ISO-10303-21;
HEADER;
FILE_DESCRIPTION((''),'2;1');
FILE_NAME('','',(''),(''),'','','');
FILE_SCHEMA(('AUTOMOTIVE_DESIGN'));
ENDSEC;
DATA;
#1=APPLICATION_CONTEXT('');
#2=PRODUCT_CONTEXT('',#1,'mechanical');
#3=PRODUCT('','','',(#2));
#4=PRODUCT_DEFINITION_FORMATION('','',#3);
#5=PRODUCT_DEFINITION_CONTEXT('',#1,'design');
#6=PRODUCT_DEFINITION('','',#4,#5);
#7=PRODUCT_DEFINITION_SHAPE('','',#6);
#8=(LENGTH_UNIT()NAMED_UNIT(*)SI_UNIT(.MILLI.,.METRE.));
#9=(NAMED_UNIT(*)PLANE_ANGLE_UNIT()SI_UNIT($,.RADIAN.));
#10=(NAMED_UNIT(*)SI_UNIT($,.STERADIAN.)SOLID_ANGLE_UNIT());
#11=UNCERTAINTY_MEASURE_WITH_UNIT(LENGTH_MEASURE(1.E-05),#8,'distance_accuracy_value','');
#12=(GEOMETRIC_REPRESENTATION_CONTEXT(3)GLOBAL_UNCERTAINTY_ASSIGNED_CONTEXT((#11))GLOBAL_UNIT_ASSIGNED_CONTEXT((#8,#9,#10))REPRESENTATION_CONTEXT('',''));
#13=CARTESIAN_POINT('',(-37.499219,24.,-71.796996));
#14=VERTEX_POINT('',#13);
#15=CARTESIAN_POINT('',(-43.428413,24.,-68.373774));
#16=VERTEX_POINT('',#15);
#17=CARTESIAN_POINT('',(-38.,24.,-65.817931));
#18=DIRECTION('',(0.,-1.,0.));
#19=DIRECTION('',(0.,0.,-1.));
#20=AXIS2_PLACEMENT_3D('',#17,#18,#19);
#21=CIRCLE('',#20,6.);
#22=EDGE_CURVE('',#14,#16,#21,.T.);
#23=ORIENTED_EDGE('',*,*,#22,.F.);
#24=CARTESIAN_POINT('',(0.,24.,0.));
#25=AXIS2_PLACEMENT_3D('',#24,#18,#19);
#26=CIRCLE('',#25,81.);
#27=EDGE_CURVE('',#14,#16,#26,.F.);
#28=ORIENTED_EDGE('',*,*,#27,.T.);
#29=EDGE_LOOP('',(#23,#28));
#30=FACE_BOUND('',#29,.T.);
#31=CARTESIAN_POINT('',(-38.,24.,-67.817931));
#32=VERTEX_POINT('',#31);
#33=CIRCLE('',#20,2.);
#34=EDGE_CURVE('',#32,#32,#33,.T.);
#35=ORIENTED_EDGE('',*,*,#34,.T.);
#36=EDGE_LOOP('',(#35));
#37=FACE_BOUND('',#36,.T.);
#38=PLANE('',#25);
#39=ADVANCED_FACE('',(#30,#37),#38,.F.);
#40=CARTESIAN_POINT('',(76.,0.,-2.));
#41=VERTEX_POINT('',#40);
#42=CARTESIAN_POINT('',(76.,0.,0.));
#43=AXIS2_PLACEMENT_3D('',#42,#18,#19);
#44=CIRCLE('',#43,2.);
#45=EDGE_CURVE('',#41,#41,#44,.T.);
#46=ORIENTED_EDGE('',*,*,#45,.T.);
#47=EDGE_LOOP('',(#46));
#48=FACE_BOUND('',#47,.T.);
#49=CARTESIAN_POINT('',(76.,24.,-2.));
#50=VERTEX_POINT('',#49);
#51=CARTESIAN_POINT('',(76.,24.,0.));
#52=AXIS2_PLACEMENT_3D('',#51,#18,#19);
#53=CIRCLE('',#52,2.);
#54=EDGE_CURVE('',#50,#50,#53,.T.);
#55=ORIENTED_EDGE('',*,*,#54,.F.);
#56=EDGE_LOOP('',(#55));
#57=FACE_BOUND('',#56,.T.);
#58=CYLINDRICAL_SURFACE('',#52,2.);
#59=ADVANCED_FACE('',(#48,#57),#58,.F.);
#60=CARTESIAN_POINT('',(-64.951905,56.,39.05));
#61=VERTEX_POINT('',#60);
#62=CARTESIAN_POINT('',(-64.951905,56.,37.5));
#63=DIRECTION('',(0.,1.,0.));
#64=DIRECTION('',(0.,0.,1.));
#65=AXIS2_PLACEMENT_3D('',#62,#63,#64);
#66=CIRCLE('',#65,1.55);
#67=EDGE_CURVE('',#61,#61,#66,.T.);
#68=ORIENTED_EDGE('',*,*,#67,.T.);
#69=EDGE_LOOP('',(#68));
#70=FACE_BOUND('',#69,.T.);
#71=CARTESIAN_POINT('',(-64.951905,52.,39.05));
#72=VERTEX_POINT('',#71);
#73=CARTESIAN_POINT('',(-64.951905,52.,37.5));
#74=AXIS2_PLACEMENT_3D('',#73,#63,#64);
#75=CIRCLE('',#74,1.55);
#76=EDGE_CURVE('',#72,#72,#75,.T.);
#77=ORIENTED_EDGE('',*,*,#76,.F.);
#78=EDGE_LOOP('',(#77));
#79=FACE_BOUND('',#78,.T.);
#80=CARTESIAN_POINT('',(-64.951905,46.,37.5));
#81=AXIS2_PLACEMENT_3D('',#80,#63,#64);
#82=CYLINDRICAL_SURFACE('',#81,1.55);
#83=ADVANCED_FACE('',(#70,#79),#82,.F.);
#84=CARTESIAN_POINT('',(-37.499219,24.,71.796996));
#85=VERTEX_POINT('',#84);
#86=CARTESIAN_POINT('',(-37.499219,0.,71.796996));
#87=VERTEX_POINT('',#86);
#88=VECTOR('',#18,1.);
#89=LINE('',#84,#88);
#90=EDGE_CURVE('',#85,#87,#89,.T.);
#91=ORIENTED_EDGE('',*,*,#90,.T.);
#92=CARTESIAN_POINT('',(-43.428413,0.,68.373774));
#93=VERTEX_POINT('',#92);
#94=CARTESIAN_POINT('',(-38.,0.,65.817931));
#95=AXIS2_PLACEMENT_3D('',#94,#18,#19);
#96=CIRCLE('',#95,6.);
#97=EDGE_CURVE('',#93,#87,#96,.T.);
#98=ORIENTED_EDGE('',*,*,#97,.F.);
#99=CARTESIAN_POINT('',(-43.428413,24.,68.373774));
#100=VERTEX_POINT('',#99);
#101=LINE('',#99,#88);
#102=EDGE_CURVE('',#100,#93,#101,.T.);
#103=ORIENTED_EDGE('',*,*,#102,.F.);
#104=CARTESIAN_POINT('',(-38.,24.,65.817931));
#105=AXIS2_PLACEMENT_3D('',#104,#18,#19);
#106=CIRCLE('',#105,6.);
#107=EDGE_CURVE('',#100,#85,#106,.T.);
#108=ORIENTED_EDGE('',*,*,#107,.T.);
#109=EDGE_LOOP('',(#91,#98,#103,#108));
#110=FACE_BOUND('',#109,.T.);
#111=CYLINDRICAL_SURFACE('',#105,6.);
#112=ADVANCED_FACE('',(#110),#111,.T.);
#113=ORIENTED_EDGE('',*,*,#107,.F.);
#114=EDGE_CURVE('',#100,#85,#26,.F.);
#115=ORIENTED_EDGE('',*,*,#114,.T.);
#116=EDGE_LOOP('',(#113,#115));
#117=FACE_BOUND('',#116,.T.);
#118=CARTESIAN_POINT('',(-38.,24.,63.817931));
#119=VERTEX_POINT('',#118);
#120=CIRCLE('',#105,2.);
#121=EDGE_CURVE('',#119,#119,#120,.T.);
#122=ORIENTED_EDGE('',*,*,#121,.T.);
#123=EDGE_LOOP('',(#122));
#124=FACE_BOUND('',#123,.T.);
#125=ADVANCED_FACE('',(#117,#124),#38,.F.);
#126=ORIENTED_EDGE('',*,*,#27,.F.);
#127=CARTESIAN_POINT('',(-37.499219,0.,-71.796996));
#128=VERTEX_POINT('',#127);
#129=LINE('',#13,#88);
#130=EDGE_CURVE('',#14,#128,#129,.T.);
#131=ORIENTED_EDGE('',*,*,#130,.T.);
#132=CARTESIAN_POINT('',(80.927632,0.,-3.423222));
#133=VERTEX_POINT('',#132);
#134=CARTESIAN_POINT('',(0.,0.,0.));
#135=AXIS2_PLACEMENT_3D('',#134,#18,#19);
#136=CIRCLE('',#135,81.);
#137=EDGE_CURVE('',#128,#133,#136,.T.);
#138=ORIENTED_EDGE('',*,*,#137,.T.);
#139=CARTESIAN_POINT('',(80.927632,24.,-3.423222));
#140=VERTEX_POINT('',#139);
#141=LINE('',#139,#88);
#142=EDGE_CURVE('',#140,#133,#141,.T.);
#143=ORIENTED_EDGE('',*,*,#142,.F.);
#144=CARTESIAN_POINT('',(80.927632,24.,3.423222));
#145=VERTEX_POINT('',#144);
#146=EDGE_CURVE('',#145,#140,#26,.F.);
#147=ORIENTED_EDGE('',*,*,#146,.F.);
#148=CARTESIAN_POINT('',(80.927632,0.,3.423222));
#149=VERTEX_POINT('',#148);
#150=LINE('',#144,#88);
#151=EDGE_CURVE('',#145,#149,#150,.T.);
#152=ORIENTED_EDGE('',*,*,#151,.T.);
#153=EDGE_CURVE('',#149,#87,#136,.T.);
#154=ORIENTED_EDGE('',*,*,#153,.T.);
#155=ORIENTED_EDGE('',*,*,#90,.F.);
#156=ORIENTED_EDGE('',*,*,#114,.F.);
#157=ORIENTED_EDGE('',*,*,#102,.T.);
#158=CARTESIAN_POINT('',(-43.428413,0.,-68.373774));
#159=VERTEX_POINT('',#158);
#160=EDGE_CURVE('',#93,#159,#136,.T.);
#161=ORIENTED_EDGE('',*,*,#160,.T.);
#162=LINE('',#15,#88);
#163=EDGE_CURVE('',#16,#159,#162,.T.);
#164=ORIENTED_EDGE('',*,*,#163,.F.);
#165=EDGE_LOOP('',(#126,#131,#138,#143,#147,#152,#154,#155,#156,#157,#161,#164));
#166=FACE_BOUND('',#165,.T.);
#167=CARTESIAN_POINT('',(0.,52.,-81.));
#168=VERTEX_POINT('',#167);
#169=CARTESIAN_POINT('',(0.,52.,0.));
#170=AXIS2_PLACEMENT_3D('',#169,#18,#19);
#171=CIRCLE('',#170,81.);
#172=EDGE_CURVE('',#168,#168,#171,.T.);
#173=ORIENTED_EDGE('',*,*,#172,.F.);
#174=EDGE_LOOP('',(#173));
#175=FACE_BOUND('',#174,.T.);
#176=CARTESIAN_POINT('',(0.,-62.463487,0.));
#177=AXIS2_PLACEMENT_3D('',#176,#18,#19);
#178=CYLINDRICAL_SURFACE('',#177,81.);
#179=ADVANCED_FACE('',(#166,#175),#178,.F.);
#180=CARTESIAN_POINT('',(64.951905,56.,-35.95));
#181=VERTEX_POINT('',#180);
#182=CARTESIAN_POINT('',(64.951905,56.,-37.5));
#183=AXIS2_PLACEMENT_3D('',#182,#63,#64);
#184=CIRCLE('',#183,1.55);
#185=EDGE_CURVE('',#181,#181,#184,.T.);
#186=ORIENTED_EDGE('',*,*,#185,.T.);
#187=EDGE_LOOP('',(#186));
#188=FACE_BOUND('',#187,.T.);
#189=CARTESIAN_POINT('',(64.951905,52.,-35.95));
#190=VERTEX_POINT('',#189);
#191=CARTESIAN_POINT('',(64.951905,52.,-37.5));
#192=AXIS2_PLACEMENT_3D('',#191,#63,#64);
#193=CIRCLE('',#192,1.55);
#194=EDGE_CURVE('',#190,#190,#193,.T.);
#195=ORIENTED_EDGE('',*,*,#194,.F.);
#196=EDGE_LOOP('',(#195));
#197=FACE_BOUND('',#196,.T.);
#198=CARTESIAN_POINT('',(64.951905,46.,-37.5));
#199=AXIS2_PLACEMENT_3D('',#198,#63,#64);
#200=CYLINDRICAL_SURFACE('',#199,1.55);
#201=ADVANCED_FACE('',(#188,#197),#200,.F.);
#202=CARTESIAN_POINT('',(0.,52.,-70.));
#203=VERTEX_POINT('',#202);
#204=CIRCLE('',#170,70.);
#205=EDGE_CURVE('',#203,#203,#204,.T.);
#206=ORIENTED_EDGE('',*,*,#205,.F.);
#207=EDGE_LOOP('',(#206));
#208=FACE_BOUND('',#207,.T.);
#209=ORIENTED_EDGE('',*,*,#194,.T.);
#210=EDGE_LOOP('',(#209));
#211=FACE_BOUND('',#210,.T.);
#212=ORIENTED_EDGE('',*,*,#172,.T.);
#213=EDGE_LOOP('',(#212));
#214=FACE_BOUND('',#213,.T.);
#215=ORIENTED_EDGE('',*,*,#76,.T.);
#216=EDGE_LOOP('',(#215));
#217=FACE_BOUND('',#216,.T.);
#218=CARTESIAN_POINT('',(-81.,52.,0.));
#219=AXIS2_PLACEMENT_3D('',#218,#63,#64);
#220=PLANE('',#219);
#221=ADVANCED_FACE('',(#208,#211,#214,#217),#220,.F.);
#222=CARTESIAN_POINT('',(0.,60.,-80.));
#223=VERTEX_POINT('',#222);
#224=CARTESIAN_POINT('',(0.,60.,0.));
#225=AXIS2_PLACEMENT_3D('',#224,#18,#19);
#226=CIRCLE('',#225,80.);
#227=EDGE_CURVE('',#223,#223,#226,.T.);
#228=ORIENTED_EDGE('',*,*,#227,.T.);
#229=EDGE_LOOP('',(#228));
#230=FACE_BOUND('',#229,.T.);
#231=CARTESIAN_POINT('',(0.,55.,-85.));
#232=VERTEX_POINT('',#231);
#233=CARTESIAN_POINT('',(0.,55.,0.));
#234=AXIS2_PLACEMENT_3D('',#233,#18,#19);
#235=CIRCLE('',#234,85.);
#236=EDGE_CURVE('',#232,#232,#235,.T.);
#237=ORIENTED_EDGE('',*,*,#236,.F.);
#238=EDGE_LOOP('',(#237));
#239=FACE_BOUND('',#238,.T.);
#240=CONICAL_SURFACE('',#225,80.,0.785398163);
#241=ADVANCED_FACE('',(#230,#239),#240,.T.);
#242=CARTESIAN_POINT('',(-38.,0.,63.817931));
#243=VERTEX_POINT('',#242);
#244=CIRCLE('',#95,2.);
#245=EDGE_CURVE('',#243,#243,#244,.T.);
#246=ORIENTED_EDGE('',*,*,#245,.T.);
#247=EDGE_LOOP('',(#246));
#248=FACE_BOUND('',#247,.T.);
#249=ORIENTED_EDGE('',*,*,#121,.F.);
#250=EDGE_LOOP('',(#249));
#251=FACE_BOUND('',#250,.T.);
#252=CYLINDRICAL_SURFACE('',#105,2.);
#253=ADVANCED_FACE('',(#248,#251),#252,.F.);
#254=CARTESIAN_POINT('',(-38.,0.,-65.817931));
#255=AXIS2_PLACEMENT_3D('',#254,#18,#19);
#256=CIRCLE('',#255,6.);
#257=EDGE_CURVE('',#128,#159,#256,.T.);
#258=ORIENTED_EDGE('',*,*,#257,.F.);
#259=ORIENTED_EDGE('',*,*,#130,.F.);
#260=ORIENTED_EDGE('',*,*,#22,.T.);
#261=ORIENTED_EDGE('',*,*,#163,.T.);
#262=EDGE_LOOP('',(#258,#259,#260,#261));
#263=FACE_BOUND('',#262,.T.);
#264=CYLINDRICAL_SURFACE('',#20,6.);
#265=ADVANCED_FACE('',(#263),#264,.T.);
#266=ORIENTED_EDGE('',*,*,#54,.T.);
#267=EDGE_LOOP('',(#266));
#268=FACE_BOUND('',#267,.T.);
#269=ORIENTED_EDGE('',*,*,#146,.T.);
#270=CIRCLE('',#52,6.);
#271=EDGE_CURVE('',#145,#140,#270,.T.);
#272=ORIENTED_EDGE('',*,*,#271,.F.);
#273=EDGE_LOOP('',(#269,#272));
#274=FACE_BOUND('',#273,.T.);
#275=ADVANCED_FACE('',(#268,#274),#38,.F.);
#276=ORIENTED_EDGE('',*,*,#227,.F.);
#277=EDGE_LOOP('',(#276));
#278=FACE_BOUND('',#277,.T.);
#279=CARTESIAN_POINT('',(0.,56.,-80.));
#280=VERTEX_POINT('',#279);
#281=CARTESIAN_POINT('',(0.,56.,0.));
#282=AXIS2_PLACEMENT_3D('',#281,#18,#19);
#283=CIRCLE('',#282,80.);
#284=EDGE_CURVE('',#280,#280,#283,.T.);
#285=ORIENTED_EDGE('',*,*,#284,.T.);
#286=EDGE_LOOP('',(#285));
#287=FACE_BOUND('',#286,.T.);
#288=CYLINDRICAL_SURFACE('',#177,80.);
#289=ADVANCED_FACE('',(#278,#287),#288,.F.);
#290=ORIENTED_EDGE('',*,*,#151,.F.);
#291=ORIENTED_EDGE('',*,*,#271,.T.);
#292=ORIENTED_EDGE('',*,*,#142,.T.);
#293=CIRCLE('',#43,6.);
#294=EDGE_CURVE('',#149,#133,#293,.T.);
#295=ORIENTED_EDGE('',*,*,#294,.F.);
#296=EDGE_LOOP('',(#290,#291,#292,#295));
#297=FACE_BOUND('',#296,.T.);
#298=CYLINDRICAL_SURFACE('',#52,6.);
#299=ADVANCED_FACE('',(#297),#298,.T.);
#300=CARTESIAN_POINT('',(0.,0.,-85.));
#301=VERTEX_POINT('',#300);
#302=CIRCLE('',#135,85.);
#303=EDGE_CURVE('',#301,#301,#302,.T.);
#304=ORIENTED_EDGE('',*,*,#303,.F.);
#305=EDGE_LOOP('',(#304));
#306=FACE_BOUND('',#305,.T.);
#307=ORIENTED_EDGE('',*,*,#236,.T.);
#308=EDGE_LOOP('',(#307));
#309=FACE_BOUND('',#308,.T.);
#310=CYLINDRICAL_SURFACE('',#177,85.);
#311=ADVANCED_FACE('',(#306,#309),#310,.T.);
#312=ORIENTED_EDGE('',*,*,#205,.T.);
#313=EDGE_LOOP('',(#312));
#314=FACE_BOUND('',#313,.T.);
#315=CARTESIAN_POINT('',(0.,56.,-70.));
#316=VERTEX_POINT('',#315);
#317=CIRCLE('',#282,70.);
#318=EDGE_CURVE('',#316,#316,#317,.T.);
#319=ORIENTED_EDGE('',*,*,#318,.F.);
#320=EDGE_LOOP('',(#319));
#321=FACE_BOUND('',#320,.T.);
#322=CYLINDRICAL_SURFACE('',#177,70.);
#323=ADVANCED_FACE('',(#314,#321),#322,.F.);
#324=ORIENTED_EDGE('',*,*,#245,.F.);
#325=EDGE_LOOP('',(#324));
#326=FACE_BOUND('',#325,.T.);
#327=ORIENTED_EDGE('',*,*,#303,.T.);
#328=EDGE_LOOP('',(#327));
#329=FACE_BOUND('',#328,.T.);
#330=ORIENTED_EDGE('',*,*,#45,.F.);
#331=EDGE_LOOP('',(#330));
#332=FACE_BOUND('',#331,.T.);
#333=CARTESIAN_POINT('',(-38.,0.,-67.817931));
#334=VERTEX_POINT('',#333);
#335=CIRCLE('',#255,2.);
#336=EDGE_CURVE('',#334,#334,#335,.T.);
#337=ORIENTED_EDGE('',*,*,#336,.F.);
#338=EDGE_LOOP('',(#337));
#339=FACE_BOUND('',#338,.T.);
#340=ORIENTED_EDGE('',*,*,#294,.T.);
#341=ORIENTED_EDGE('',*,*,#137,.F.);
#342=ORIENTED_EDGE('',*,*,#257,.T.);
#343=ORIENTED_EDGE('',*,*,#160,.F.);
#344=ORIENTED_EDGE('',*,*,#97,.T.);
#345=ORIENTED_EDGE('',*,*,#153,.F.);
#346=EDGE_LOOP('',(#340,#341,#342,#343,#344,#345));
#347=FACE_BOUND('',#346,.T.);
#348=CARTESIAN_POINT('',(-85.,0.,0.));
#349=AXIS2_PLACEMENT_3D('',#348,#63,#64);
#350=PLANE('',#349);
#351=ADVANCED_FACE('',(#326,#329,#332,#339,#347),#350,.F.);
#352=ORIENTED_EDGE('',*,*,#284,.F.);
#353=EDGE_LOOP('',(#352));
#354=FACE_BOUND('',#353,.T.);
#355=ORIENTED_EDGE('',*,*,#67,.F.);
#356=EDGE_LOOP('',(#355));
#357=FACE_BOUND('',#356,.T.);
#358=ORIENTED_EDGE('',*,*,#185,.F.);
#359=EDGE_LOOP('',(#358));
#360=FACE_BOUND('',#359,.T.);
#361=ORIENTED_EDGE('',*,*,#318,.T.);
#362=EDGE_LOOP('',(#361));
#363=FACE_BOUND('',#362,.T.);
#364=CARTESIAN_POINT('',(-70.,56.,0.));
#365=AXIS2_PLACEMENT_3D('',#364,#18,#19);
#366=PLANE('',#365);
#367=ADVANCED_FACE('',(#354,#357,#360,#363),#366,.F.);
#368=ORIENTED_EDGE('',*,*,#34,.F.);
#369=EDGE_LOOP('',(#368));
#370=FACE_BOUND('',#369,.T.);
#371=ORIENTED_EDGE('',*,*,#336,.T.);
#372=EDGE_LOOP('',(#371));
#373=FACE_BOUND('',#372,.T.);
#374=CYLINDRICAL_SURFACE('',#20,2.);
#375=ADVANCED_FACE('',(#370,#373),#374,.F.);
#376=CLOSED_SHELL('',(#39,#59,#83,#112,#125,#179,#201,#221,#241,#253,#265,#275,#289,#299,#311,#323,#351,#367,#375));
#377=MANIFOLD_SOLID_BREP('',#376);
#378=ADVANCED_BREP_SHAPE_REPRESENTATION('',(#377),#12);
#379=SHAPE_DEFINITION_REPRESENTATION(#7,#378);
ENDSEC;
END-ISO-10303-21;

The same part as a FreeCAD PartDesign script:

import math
import FreeCAD as App
import Part
import Sketcher

V = App.Vector

doc = App.newDocument("Part")
params = doc.addObject("Spreadsheet::Sheet", "Params")
for row, (alias, value) in enumerate([
    ("sketch1_width", "4 mm"),
    ("sketch1_width2", "11 mm"),
    ("sketch1_width3", "10 mm"),
    ("sketch1_height", "55 mm"),
    ("sketch1_height2", "52 mm"),
    ("revolution_angle", "360 deg"),
    ("sketch2_diameter", "4 mm"),
    ("sketch2_radius", "6 mm"),
    ("sketch2_radius2", "81 mm"),
    ("pad1_length", "24 mm"),
    ("sketch3_diameter", "3.1 mm"),
    ("pocket1_length", "10 mm"),
], start=1):
    params.set(f"A{row}", alias)
    params.set(f"B{row}", "=" + value)
    params.setAlias(f"B{row}", alias)

body = doc.addObject("PartDesign::Body", "Body")

# Sketch on XY plane
sketch1 = body.newObject("Sketcher::SketchObject", "Sketch")
sketch1.AttachmentSupport = (doc.getObject("XY_Plane"), [""])
sketch1.MapMode = "FlatFace"
sketch1.addGeometry([
    Part.LineSegment(V(-85, 55, 0), V(-85, 0, 0)),  # 0
    Part.LineSegment(V(-85, 0, 0), V(-81, 0, 0)),  # 1
    Part.LineSegment(V(-81, 0, 0), V(-81, 52, 0)),  # 2
    Part.LineSegment(V(-81, 52, 0), V(-70, 52, 0)),  # 3
    Part.LineSegment(V(-70, 52, 0), V(-70, 56, 0)),  # 4
    Part.LineSegment(V(-70, 56, 0), V(-80, 56, 0)),  # 5
    Part.LineSegment(V(-80, 56, 0), V(-80, 60, 0)),  # 6
    Part.LineSegment(V(-80, 60, 0), V(-85, 55, 0)),  # 7
], False)
sketch1.addConstraint([
    Sketcher.Constraint("Coincident", 0, 2, 1, 1),
    Sketcher.Constraint("Coincident", 1, 2, 2, 1),
    Sketcher.Constraint("Coincident", 2, 2, 3, 1),
    Sketcher.Constraint("Coincident", 3, 2, 4, 1),
    Sketcher.Constraint("Coincident", 4, 2, 5, 1),
    Sketcher.Constraint("Coincident", 5, 2, 6, 1),
    Sketcher.Constraint("Coincident", 6, 2, 7, 1),
    Sketcher.Constraint("Coincident", 7, 2, 0, 1),
    Sketcher.Constraint("Vertical", 0),
    Sketcher.Constraint("Horizontal", 1),
    Sketcher.Constraint("Vertical", 2),
    Sketcher.Constraint("Horizontal", 3),
    Sketcher.Constraint("Vertical", 4),
    Sketcher.Constraint("Horizontal", 5),
    Sketcher.Constraint("Vertical", 6),
    Sketcher.Constraint("PointOnObject", 0, 2, -1),
    Sketcher.Constraint("Equal", 1, 4),
    Sketcher.Constraint("Equal", 4, 6),
    Sketcher.Constraint("DistanceX", 1, 1, 1, 2, 4.0),
    Sketcher.Constraint("DistanceX", 3, 1, 3, 2, 11.0),
    Sketcher.Constraint("DistanceX", 5, 2, 5, 1, 10.0),
    Sketcher.Constraint("DistanceY", 0, 2, 0, 1, 55.0),
    Sketcher.Constraint("DistanceY", 2, 1, 2, 2, 52.0),
    Sketcher.Constraint("DistanceX", 0, 2, -1, 1, 85.0),
])
sketch1.setExpression("Constraints[18]", "Params.sketch1_width")
sketch1.setExpression("Constraints[19]", "Params.sketch1_width2")
sketch1.setExpression("Constraints[20]", "Params.sketch1_width3")
sketch1.setExpression("Constraints[21]", "Params.sketch1_height")
sketch1.setExpression("Constraints[22]", "Params.sketch1_height2")
revolution = body.newObject("PartDesign::Revolution", "Revolution")
revolution.Profile = sketch1
revolution.ReferenceAxis = (sketch1, ["V_Axis"])
revolution.setExpression("Angle", "Params.revolution_angle")

# Sketch on XZ plane
sketch2 = body.newObject("Sketcher::SketchObject", "Sketch001")
sketch2.AttachmentSupport = (doc.getObject("XZ_Plane"), [""])
sketch2.MapMode = "FlatFace"
sketch2.addGeometry([
    Part.ArcOfCircle(Part.Circle(V(-38, 65.817931, 0), V(0, 0, 1), 6), math.radians(154.787678), math.radians(445.212322)),  # 0
    Part.ArcOfCircle(Part.Circle(V(0, 0, 0), V(0, 0, 1), 81), math.radians(117.577845), math.radians(122.422155)),  # 1
    Part.Circle(V(-38, 65.817931, 0), V(0, 0, 1), 2),  # 2
    Part.ArcOfCircle(Part.Circle(V(0, 0, 0), V(0, 0, 1), 81), math.radians(-122.422155), math.radians(-117.577845)),  # 3
    Part.ArcOfCircle(Part.Circle(V(-38, -65.817931, 0), V(0, 0, 1), 6), math.radians(-85.212322), math.radians(205.212322)),  # 4
    Part.Circle(V(-38, -65.817931, 0), V(0, 0, 1), 2),  # 5
    Part.ArcOfCircle(Part.Circle(V(0.000001, 0, 0), V(0, 0, 1), 80.999999), math.radians(0), math.radians(2.422155)),  # 6
    Part.ArcOfCircle(Part.Circle(V(76, 0, 0), V(0, 0, 1), 6), math.radians(34.787678), math.radians(325.212322)),  # 7
    Part.ArcOfCircle(Part.Circle(V(0.000001, 0, 0), V(0, 0, 1), 80.999999), math.radians(-2.422155), math.radians(0)),  # 8
    Part.Circle(V(76, 0, 0), V(0, 0, 1), 2),  # 9
], False)
sketch2.addConstraint([
    Sketcher.Constraint("Coincident", 0, 1, 1, 2),
    Sketcher.Constraint("Coincident", 1, 1, 0, 2),
    Sketcher.Constraint("Coincident", 3, 1, 4, 2),
    Sketcher.Constraint("Coincident", 4, 1, 3, 2),
    Sketcher.Constraint("Coincident", 6, 2, 7, 1),
    Sketcher.Constraint("Coincident", 7, 2, 8, 1),
    Sketcher.Constraint("Tangent", 8, 2, 6, 1),
    Sketcher.Constraint("Coincident", 1, 3, -1, 1),
    Sketcher.Constraint("Coincident", 3, 3, -1, 1),
    Sketcher.Constraint("Coincident", 6, 3, -1, 1),
    Sketcher.Constraint("Coincident", 2, 3, 0, 3),
    Sketcher.Constraint("Coincident", 5, 3, 4, 3),
    Sketcher.Constraint("Coincident", 9, 3, 7, 3),
    Sketcher.Constraint("Equal", 1, 3),
    Sketcher.Constraint("Equal", 0, 4),
    Sketcher.Constraint("Equal", 2, 5),
    Sketcher.Constraint("Equal", 3, 6),
    Sketcher.Constraint("Equal", 4, 7),
    Sketcher.Constraint("Equal", 6, 8),
    Sketcher.Constraint("Equal", 5, 9),
    Sketcher.Constraint("Symmetric", 0, 3, 4, 3, -1),
    Sketcher.Constraint("PointOnObject", 7, 3, -1),
    Sketcher.Constraint("PointOnObject", 8, 2, -1),
    Sketcher.Constraint("Diameter", 2, 4.0),
    Sketcher.Constraint("Radius", 0, 6.0),
    Sketcher.Constraint("Radius", 1, 81.0),
    Sketcher.Constraint("DistanceX", 0, 3, -1, 1, 38.0),
    Sketcher.Constraint("DistanceX", -1, 1, 7, 3, 76.0),
    Sketcher.Constraint("DistanceY", -1, 1, 0, 3, 65.817931),
])
sketch2.setExpression("Constraints[23]", "Params.sketch2_diameter")
sketch2.setExpression("Constraints[24]", "Params.sketch2_radius")
sketch2.setExpression("Constraints[25]", "Params.sketch2_radius2")
pad1 = body.newObject("PartDesign::Pad", "Pad")
pad1.Profile = sketch2
pad1.setExpression("Length", "Params.pad1_length")
pad1.Reversed = True

# Sketch on XZ plane
sketch3 = body.newObject("Sketcher::SketchObject", "Sketch002")
sketch3.AttachmentSupport = (doc.getObject("XZ_Plane"), [""])
sketch3.MapMode = "FlatFace"
sketch3.AttachmentOffset = App.Placement(V(0, 0, -56), App.Rotation())
sketch3.addGeometry([
    Part.Circle(V(-64.951905, 37.5, 0), V(0, 0, 1), 1.55),
    Part.Circle(V(64.951905, -37.5, 0), V(0, 0, 1), 1.55),
], False)
sketch3.addConstraint([
    Sketcher.Constraint("Equal", 0, 1),
    Sketcher.Constraint("Symmetric", 0, 3, 1, 3, -1, 1),
    Sketcher.Constraint("Diameter", 0, 3.1),
    Sketcher.Constraint("DistanceY", 1, 3, 0, 3, 75.0),
    Sketcher.Constraint("DistanceX", 0, 3, 1, 3, 129.903811),
])
sketch3.setExpression("Constraints[2]", "Params.sketch3_diameter")
pocket1 = body.newObject("PartDesign::Pocket", "Pocket")
pocket1.Profile = sketch3
pocket1.setExpression("Length", "Params.pocket1_length")
pocket1.Reversed = True

doc.recompute()
